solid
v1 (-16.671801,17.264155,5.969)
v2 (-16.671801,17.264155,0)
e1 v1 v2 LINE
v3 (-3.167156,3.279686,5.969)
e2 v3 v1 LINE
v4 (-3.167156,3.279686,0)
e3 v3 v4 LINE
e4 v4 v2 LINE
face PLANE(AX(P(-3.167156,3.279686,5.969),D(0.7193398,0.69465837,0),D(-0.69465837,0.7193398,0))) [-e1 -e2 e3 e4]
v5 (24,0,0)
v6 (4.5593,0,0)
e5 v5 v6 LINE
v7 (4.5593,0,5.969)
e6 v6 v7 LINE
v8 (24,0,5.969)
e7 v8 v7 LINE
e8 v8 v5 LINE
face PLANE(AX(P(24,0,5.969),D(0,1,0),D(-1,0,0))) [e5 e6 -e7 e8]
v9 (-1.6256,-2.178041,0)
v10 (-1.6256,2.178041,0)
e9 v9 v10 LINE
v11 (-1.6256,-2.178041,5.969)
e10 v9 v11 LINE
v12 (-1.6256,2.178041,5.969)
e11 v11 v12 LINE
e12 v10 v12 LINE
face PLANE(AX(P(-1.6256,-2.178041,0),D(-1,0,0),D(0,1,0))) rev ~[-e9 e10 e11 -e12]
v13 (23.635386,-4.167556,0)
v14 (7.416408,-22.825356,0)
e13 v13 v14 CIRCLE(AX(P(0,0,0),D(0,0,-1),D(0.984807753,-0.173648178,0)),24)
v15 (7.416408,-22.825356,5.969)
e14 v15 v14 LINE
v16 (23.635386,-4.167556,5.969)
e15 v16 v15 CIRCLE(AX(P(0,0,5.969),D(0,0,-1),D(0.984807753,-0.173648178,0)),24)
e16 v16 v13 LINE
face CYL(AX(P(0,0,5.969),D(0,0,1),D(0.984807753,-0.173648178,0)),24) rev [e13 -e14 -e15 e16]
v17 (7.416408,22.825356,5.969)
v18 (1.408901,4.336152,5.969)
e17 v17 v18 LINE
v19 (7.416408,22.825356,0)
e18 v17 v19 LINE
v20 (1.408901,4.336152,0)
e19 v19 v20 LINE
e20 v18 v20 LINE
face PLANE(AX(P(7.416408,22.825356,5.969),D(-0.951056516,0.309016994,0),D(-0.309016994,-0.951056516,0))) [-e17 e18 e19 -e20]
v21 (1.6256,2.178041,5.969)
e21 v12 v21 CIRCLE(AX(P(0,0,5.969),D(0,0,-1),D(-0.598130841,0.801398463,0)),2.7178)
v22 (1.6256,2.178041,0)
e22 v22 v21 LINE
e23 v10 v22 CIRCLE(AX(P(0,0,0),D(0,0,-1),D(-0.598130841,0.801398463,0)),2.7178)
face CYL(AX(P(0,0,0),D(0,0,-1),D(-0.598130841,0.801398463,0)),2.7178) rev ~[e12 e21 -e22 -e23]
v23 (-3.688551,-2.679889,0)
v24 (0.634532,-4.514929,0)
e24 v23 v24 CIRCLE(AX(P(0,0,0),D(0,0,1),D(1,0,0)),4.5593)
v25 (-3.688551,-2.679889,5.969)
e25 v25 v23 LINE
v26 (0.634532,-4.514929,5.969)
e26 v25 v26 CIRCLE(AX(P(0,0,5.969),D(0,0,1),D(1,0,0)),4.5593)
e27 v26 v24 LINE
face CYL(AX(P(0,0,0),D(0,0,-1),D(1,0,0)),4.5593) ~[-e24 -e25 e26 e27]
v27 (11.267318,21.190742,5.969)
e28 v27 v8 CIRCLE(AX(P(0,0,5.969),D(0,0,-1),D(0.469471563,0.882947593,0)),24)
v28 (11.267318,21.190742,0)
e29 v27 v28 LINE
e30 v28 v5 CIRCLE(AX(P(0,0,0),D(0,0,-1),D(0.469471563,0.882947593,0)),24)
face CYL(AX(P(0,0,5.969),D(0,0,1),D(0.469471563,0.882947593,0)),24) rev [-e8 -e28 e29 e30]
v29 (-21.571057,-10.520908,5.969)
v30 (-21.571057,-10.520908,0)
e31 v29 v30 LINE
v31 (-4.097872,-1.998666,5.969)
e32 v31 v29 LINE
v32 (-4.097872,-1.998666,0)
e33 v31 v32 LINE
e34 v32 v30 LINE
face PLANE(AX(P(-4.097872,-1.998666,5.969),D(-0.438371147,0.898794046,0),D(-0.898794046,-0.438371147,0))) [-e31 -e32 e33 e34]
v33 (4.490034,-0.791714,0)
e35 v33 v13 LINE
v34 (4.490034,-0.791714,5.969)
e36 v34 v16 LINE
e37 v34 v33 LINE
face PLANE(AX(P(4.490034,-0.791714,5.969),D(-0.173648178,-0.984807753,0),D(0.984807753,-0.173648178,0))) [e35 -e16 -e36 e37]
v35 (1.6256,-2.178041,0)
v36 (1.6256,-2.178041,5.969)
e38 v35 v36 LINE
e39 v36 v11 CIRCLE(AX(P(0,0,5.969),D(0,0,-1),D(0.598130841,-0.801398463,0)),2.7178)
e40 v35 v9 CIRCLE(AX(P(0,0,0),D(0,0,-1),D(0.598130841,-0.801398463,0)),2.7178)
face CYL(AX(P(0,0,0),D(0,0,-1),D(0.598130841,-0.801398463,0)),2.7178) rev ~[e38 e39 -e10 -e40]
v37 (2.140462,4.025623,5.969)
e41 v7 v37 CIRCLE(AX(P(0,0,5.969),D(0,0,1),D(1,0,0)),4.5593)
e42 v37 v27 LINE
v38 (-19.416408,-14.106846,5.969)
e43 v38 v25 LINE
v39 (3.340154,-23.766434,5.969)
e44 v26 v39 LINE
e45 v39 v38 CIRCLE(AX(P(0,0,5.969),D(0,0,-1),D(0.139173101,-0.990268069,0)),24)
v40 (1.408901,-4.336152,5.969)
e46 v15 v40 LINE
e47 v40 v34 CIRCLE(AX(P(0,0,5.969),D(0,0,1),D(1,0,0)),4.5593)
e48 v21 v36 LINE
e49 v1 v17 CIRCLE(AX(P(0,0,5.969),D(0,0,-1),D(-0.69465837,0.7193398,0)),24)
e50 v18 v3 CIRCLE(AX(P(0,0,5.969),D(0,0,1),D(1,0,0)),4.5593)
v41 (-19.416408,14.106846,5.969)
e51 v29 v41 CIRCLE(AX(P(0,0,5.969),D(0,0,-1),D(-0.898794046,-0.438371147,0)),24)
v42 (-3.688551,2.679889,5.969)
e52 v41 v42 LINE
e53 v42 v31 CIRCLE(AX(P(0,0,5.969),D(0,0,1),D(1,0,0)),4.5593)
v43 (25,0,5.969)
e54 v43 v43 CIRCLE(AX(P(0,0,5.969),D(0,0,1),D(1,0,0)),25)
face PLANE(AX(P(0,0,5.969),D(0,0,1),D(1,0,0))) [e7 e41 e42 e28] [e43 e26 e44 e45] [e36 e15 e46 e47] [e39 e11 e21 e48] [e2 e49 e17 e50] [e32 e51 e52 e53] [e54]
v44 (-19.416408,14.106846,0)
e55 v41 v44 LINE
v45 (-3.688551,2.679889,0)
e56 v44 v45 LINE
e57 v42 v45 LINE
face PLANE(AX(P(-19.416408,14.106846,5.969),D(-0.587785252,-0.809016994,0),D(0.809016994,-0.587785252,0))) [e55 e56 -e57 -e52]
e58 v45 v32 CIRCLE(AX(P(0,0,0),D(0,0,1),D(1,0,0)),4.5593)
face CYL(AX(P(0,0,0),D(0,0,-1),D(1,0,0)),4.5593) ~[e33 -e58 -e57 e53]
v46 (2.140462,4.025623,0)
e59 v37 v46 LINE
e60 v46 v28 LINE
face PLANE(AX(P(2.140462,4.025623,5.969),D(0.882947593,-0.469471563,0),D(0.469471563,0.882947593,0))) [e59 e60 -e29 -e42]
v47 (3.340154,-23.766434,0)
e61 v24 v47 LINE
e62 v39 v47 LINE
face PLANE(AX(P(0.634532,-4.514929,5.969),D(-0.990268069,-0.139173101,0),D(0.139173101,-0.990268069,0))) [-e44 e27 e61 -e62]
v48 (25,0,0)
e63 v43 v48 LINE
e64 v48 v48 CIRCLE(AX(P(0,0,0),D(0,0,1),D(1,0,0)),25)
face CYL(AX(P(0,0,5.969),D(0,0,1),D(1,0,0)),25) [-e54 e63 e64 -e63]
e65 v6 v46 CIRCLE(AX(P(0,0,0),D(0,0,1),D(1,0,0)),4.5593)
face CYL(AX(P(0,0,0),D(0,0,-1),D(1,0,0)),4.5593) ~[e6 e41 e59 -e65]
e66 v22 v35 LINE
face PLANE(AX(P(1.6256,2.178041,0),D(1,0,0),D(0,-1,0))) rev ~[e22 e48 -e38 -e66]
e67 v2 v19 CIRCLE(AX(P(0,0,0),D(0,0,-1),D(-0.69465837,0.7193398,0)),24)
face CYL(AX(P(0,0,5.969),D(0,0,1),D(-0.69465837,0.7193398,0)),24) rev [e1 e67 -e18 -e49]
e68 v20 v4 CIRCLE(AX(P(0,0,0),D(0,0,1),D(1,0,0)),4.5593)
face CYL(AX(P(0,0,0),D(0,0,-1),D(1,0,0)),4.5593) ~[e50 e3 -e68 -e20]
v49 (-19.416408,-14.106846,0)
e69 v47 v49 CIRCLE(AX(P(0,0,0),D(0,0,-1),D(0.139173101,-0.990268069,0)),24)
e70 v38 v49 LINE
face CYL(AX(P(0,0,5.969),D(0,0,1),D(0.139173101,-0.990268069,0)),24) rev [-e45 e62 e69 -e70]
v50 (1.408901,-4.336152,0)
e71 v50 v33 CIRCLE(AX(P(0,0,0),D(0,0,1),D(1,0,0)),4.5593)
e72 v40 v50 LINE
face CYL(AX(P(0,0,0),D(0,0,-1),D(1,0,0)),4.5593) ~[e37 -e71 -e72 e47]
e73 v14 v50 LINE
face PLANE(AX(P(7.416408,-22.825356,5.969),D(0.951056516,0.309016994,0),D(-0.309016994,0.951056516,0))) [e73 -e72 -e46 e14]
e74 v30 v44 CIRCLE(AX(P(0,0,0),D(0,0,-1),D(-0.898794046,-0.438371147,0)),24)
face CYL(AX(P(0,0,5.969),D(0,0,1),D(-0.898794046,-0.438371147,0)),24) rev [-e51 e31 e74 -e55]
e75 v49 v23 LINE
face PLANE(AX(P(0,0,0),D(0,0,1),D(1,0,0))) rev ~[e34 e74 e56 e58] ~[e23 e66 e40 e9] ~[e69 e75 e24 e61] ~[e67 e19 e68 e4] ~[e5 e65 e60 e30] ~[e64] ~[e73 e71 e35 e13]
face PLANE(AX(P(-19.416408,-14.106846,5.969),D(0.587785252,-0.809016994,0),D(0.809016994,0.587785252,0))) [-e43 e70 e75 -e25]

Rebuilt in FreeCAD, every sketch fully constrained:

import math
import FreeCAD as App
import Part
import Sketcher

V = App.Vector
Q = App.Units.Quantity

doc = App.newDocument("Part")
body = doc.addObject("PartDesign::Body", "Body")

# Sketch on XY plane
sketch1 = doc.addObject("Sketcher::SketchObject", "Sketch")
body.addObject(sketch1)
sketch1.AttachmentSupport = (doc.XY_Plane, [""])
sketch1.MapMode = "FlatFace"
sketch1.addGeometry(Part.Circle(V(0, 0, 0), V(0, 0, 1), 4.6), False)
sketch1.addGeometry(Part.ArcOfCircle(Part.Circle(V(0, 0, 0), V(0, 0, 1), 2.7), math.radians(-127), math.radians(-53)), False)
sketch1.addGeometry(Part.LineSegment(V(-1.6, -2.2, 0), V(-1.6, 2.2, 0)), False)
sketch1.addGeometry(Part.ArcOfCircle(Part.Circle(V(0, 0, 0), V(0, 0, 1), 2.7), math.radians(53), math.radians(127)), False)
sketch1.addGeometry(Part.LineSegment(V(1.6, 2.2, 0), V(1.6, -2.2, 0)), False)
sketch1.addConstraint(Sketcher.Constraint("Coincident", 1, 1, 2, 1))
sketch1.addConstraint(Sketcher.Constraint("Coincident", 2, 2, 3, 2))
sketch1.addConstraint(Sketcher.Constraint("Coincident", 3, 1, 4, 1))
sketch1.addConstraint(Sketcher.Constraint("Coincident", 4, 2, 1, 2))
sketch1.addConstraint(Sketcher.Constraint("Vertical", 2))
sketch1.addConstraint(Sketcher.Constraint("Vertical", 4))
sketch1.addConstraint(Sketcher.Constraint("Coincident", 0, 3, -1, 1))
sketch1.addConstraint(Sketcher.Constraint("Coincident", 1, 3, -1, 1))
sketch1.addConstraint(Sketcher.Constraint("Coincident", 3, 3, -1, 1))
sketch1.addConstraint(Sketcher.Constraint("Equal", 1, 3))
sketch1.addConstraint(Sketcher.Constraint("Horizontal", 2, 2, 3, 1))
sketch1.addConstraint(Sketcher.Constraint("Diameter", 0, Q("0.359 in")))
sketch1.addConstraint(Sketcher.Constraint("Radius", 1, Q("0.107 in")))
sketch1.addConstraint(Sketcher.Constraint("DistanceX", 1, 1, -1, 1, Q("0.064 in")))
pad1 = doc.addObject("PartDesign::Pad", "Pad")
body.addObject(pad1)
pad1.Profile = sketch1
pad1.Length = Q("0.235 in")

# Sketch on XY plane
sketch2 = doc.addObject("Sketcher::SketchObject", "Sketch001")
body.addObject(sketch2)
sketch2.AttachmentSupport = (doc.XY_Plane, [""])
sketch2.MapMode = "FlatFace"
sketch2.AttachmentOffset = App.Placement(V(0, 0, 0.235 * 25.4), App.Rotation())
sketch2.addGeometry(Part.Circle(V(0, 0, 0), V(0, 0, 1), 25), False)
sketch2.addGeometry(Part.LineSegment(V(24, 0, 0), V(4.6, 0, 0)), False)
sketch2.addGeometry(Part.ArcOfCircle(Part.Circle(V(0, 0, 0), V(0, 0, 1), 4.6), math.radians(-10), math.radians(0)), False)
sketch2.addGeometry(Part.LineSegment(V(4.5, -0.8, 0), V(23.6, -4.2, 0)), False)
sketch2.addGeometry(Part.ArcOfCircle(Part.Circle(V(0, 0, 0), V(0, 0, 1), 24), math.radians(-72), math.radians(-10)), False)
sketch2.addGeometry(Part.LineSegment(V(7.4, -22.8, 0), V(1.4, -4.3, 0)), False)
sketch2.addGeometry(Part.ArcOfCircle(Part.Circle(V(0, 0, 0), V(0, 0, 1), 4.6), math.radians(-82), math.radians(-72)), False)
sketch2.addGeometry(Part.LineSegment(V(0.6, -4.5, 0), V(3.3, -23.8, 0)), False)
sketch2.addGeometry(Part.ArcOfCircle(Part.Circle(V(0, 0, 0), V(0, 0, 1), 24), math.radians(-144), math.radians(-82)), False)
sketch2.addGeometry(Part.LineSegment(V(-19.4, -14.1, 0), V(-3.7, -2.7, 0)), False)
sketch2.addGeometry(Part.ArcOfCircle(Part.Circle(V(0, 0, 0), V(0, 0, 1), 4.6), math.radians(-154), math.radians(-144)), False)
sketch2.addGeometry(Part.LineSegment(V(-4.1, -2, 0), V(-21.6, -10.5, 0)), False)
sketch2.addGeometry(Part.ArcOfCircle(Part.Circle(V(0, 0, 0), V(0, 0, 1), 24), math.radians(144), math.radians(206)), False)
sketch2.addGeometry(Part.LineSegment(V(-19.4, 14.1, 0), V(-3.7, 2.7, 0)), False)
sketch2.addGeometry(Part.ArcOfCircle(Part.Circle(V(0, 0, 0), V(0, 0, 1), 4.6), math.radians(134), math.radians(144)), False)
sketch2.addGeometry(Part.LineSegment(V(-3.2, 3.3, 0), V(-16.7, 17.3, 0)), False)
sketch2.addGeometry(Part.ArcOfCircle(Part.Circle(V(0, 0, 0), V(0, 0, 1), 24), math.radians(72), math.radians(134)), False)
sketch2.addGeometry(Part.LineSegment(V(7.4, 22.8, 0), V(1.4, 4.3, 0)), False)
sketch2.addGeometry(Part.ArcOfCircle(Part.Circle(V(0, 0, 0), V(0, 0, 1), 4.6), math.radians(62), math.radians(72)), False)
sketch2.addGeometry(Part.LineSegment(V(2.1, 4, 0), V(11.3, 21.2, 0)), False)
sketch2.addGeometry(Part.ArcOfCircle(Part.Circle(V(0, 0, 0), V(0, 0, 1), 24), math.radians(0), math.radians(62)), False)
sketch2.addConstraint(Sketcher.Constraint("Coincident", 1, 2, 2, 2))
sketch2.addConstraint(Sketcher.Constraint("Coincident", 2, 1, 3, 1))
sketch2.addConstraint(Sketcher.Constraint("Coincident", 3, 2, 4, 2))
sketch2.addConstraint(Sketcher.Constraint("Coincident", 4, 1, 5, 1))
sketch2.addConstraint(Sketcher.Constraint("Coincident", 5, 2, 6, 2))
sketch2.addConstraint(Sketcher.Constraint("Coincident", 6, 1, 7, 1))
sketch2.addConstraint(Sketcher.Constraint("Coincident", 7, 2, 8, 2))
sketch2.addConstraint(Sketcher.Constraint("Coincident", 8, 1, 9, 1))
sketch2.addConstraint(Sketcher.Constraint("Coincident", 9, 2, 10, 2))
sketch2.addConstraint(Sketcher.Constraint("Coincident", 10, 1, 11, 1))
sketch2.addConstraint(Sketcher.Constraint("Coincident", 11, 2, 12, 2))
sketch2.addConstraint(Sketcher.Constraint("Coincident", 12, 1, 13, 1))
sketch2.addConstraint(Sketcher.Constraint("Coincident", 13, 2, 14, 2))
sketch2.addConstraint(Sketcher.Constraint("Coincident", 14, 1, 15, 1))
sketch2.addConstraint(Sketcher.Constraint("Coincident", 15, 2, 16, 2))
sketch2.addConstraint(Sketcher.Constraint("Coincident", 16, 1, 17, 1))
sketch2.addConstraint(Sketcher.Constraint("Coincident", 17, 2, 18, 2))
sketch2.addConstraint(Sketcher.Constraint("Coincident", 18, 1, 19, 1))
sketch2.addConstraint(Sketcher.Constraint("Coincident", 19, 2, 20, 2))
sketch2.addConstraint(Sketcher.Constraint("Coincident", 20, 1, 1, 1))
sketch2.addConstraint(Sketcher.Constraint("Horizontal", 1))
sketch2.addConstraint(Sketcher.Constraint("Coincident", 0, 3, -1, 1))
sketch2.addConstraint(Sketcher.Constraint("Coincident", 2, 3, -1, 1))
sketch2.addConstraint(Sketcher.Constraint("Coincident", 4, 3, -1, 1))
sketch2.addConstraint(Sketcher.Constraint("Coincident", 6, 3, -1, 1))
sketch2.addConstraint(Sketcher.Constraint("Coincident", 8, 3, -1, 1))
sketch2.addConstraint(Sketcher.Constraint("Coincident", 10, 3, -1, 1))
sketch2.addConstraint(Sketcher.Constraint("Coincident", 12, 3, -1, 1))
sketch2.addConstraint(Sketcher.Constraint("Coincident", 14, 3, -1, 1))
sketch2.addConstraint(Sketcher.Constraint("Coincident", 16, 3, -1, 1))
sketch2.addConstraint(Sketcher.Constraint("Coincident", 18, 3, -1, 1))
sketch2.addConstraint(Sketcher.Constraint("Coincident", 20, 3, -1, 1))
sketch2.addConstraint(Sketcher.Constraint("Equal", 2, 6))
sketch2.addConstraint(Sketcher.Constraint("Equal", 4, 8))
sketch2.addConstraint(Sketcher.Constraint("Equal", 6, 10))
sketch2.addConstraint(Sketcher.Constraint("Equal", 8, 12))
sketch2.addConstraint(Sketcher.Constraint("Equal", 10, 14))
sketch2.addConstraint(Sketcher.Constraint("Equal", 12, 16))
sketch2.addConstraint(Sketcher.Constraint("Equal", 14, 18))
sketch2.addConstraint(Sketcher.Constraint("Equal", 16, 20))
sketch2.addConstraint(Sketcher.Constraint("PointOnObject", 1, 2, -1))
sketch2.addConstraint(Sketcher.Constraint("Vertical", 8, 1, 12, 1))
sketch2.addConstraint(Sketcher.Constraint("Vertical", 9, 2, 13, 2))
sketch2.addConstraint(Sketcher.Constraint("Vertical", 4, 1, 16, 1))
sketch2.addConstraint(Sketcher.Constraint("Vertical", 5, 2, 17, 2))
sketch2.addConstraint(Sketcher.Constraint("Angle", 3, Q("-10 deg")))
sketch2.addConstraint(Sketcher.Constraint("Angle", 5, Q("108 deg")))
sketch2.addConstraint(Sketcher.Constraint("Angle", 7, Q("-82 deg")))
sketch2.addConstraint(Sketcher.Constraint("Angle", 9, Q("36 deg")))
sketch2.addConstraint(Sketcher.Constraint("Angle", 11, Q("-154 deg")))
sketch2.addConstraint(Sketcher.Constraint("Angle", 15, Q("134 deg")))
sketch2.addConstraint(Sketcher.Constraint("Angle", 19, Q("62 deg")))
sketch2.addConstraint(Sketcher.Constraint("Radius", 2, Q("0.1795 in")))
sketch2.addConstraint(Sketcher.Constraint("Diameter", 0, 50.0))
sketch2.addConstraint(Sketcher.Constraint("Radius", 4, 24.0))
sketch2.addConstraint(Sketcher.Constraint("DistanceX", -1, 1, 5, 2, 1.408901))
sketch2.addConstraint(Sketcher.Constraint("DistanceX", 15, 2, -1, 1, 16.671801))
sketch2.addConstraint(Sketcher.Constraint("DistanceX", -1, 1, 6, 1, 0.634532))
sketch2.addConstraint(Sketcher.Constraint("DistanceX", 9, 2, -1, 1, 3.688551))
sketch2.addConstraint(Sketcher.Constraint("DistanceX", 10, 1, -1, 1, 4.097872))
sketch2.addConstraint(Sketcher.Constraint("DistanceX", -1, 1, 18, 1, 2.140462))
sketch2.addConstraint(Sketcher.Constraint("DistanceX", 7, 2, 2, 1, 1.14988))
pad2 = doc.addObject("PartDesign::Pad", "Pad001")
body.addObject(pad2)
pad2.Profile = sketch2
pad2.Length = Q("0.235 in")
pad2.Reversed = True

doc.recompute()
